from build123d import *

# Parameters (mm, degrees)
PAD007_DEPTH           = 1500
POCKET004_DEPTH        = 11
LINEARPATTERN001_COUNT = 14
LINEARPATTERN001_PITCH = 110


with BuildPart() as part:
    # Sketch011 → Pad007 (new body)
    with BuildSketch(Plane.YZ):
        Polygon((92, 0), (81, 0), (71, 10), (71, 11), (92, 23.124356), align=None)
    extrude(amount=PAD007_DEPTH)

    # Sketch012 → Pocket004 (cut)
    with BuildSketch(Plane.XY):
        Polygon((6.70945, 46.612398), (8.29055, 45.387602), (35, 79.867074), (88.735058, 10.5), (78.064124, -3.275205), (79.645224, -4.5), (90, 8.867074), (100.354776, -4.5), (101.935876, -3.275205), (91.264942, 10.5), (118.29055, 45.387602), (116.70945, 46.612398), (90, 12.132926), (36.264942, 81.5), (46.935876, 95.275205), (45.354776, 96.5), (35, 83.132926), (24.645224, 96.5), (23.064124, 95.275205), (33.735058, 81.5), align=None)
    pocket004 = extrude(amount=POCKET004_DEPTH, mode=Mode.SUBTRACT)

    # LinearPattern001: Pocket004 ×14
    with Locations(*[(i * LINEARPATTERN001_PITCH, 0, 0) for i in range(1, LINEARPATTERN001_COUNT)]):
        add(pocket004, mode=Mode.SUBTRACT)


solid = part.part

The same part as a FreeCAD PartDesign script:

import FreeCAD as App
import Part
import Sketcher

V = App.Vector
Q = App.Units.Quantity


def add_polygon(sketch, points):
    """Adds a closed chain of lines whose ends are joined by coincident constraints."""
    first, n = sketch.GeometryCount, len(points)
    for a, b in zip(points, points[1:] + points[:1]):
        sketch.addGeometry(Part.LineSegment(App.Vector(*a, 0), App.Vector(*b, 0)), False)
    for i in range(n):
        sketch.addConstraint(Sketcher.Constraint("Coincident", first + i, 2, first + (i + 1) % n, 1))

doc = App.newDocument("Part")
body = doc.addObject("PartDesign::Body", "Body")

sketch1 = doc.addObject("Sketcher::SketchObject", "Sketch")
body.addObject(sketch1)
sketch1.AttachmentSupport = (doc.YZ_Plane, [""])
sketch1.MapMode = "FlatFace"
add_polygon(sketch1, [(81, 0), (92, 0), (92, 23.124356), (71, 11), (71, 10)])
sketch1.addConstraint([
    Sketcher.Constraint("Horizontal", 0),
    Sketcher.Constraint("Vertical", 1),
    Sketcher.Constraint("Vertical", 3),
    Sketcher.Constraint("PointOnObject", 0, 2, -1),
    Sketcher.Constraint("DistanceX", 0, 1, 0, 2, Q("11 mm")),
    Sketcher.Constraint("DistanceY", 3, 2, 3, 1, Q("1 mm")),
    Sketcher.Constraint("Angle", 2, Q("-149.999999 deg")),
    Sketcher.Constraint("Angle", 4, Q("-45 deg")),
    Sketcher.Constraint("DistanceX", -1, 1, 0, 2, Q("92 mm")),
    Sketcher.Constraint("DistanceX", -1, 1, 2, 2, Q("71 mm")),
])
pad1 = doc.addObject("PartDesign::Pad", "Pad")
body.addObject(pad1)
pad1.Profile = sketch1
pad1.Length = 1500

sketch2 = doc.addObject("Sketcher::SketchObject", "Sketch001")
body.addObject(sketch2)
sketch2.AttachmentSupport = (doc.XY_Plane, [""])
sketch2.MapMode = "FlatFace"
add_polygon(sketch2, [(6.70945, 46.612398), (8.29055, 45.387602), (35, 79.867074), (88.735058, 10.5), (78.064124, -3.275205), (79.645224, -4.5), (90, 8.867074), (100.354776, -4.5), (101.935876, -3.275205), (91.264942, 10.5), (118.29055, 45.387602), (116.70945, 46.612398), (90, 12.132926), (36.264942, 81.5), (46.935876, 95.275205), (45.354776, 96.5), (35, 83.132926), (24.645224, 96.5), (23.064124, 95.275205), (33.735058, 81.5)])
sketch2.addConstraint([
    Sketcher.Constraint("Distance", 0, Q("2.000001 mm")),
    Sketcher.Constraint("Distance", 4, Q("2 mm")),
    Sketcher.Constraint("Distance", 7, Q("2 mm")),
    Sketcher.Constraint("Distance", 10, Q("2.000001 mm")),
    Sketcher.Constraint("Distance", 14, Q("2 mm")),
    Sketcher.Constraint("Distance", 17, Q("2 mm")),
    Sketcher.Constraint("DistanceX", -1, 1, 1, 2, Q("35 mm")),
    Sketcher.Constraint("DistanceX", -1, 1, 5, 2, Q("90 mm")),
    Sketcher.Constraint("DistanceX", -1, 1, 11, 2, Q("90 mm")),
    Sketcher.Constraint("DistanceX", -1, 1, 15, 2, Q("35 mm")),
    Sketcher.Constraint("DistanceY", 4, 2, 2, 2, Q("15 mm")),
    Sketcher.Constraint("DistanceY", 5, 2, 1, 2, Q("71 mm")),
    Sketcher.Constraint("DistanceY", 6, 2, 2, 2, Q("15 mm")),
    Sketcher.Constraint("DistanceY", 6, 2, 8, 2, Q("15 mm")),
    Sketcher.Constraint("DistanceY", 2, 2, 12, 2, Q("71 mm")),
    Sketcher.Constraint("DistanceY", 12, 2, 14, 2, Q("15 mm")),
    Sketcher.Constraint("DistanceY", 12, 2, 16, 2, Q("15 mm")),
    Sketcher.Constraint("DistanceY", 18, 2, 16, 2, Q("15 mm")),
    Sketcher.Constraint("DistanceY", -1, 1, 2, 2, Q("10.5 mm")),
    Sketcher.Constraint("DistanceX", 3, 2, 4, 2, Q("1.5811 mm")),
    Sketcher.Constraint("DistanceX", 6, 2, 7, 2, Q("1.5811 mm")),
    Sketcher.Constraint("DistanceX", 10, 2, 9, 2, Q("1.5811 mm")),
    Sketcher.Constraint("DistanceX", 14, 2, 13, 2, Q("1.5811 mm")),
    Sketcher.Constraint("DistanceX", 17, 2, 16, 2, Q("1.5811 mm")),
    Sketcher.Constraint("DistanceX", 19, 2, 0, 2, Q("1.5811 mm")),
    Sketcher.Constraint("Distance", 3, Q("17.424842 mm")),
    Sketcher.Constraint("Distance", 5, Q("16.908579 mm")),
    Sketcher.Constraint("Distance", 6, Q("16.908579 mm")),
    Sketcher.Constraint("Distance", 8, Q("17.424842 mm")),
    Sketcher.Constraint("Distance", 9, Q("44.130809 mm")),
    Sketcher.Constraint("Distance", 13, Q("17.424842 mm")),
    Sketcher.Constraint("Distance", 15, Q("16.908579 mm")),
    Sketcher.Constraint("Distance", 16, Q("16.908579 mm")),
    Sketcher.Constraint("Distance", 18, Q("17.424842 mm")),
    Sketcher.Constraint("Distance", 19, Q("44.130809 mm")),
    Sketcher.Constraint("DistanceX", -1, 1, 0, 2, Q("8.29055 mm")),
    Sketcher.Constraint("DistanceX", -1, 1, 9, 2, Q("118.29055 mm")),
    Sketcher.Constraint("DistanceX", -1, 1, 12, 2, Q("36.264942 mm")),
    Sketcher.Constraint("DistanceX", 0, 2, 2, 2, Q("80.444508 mm")),
    Sketcher.Constraint("DistanceY", 5, 2, 11, 2, Q("3.265852 mm")),
])
pocket1 = doc.addObject("PartDesign::Pocket", "Pocket")
body.addObject(pocket1)
pocket1.Profile = sketch2
pocket1.Length = 11
pocket1.Reversed = True
doc.recompute()

linearpattern = doc.addObject("PartDesign::LinearPattern", "LinearPattern")
body.addObject(linearpattern)
linearpattern.Originals = [pocket1]
linearpattern.Direction = (doc.X_Axis, [""])
linearpattern.Mode = "offset"
linearpattern.Offset = 110
linearpattern.Occurrences = 14
body.Tip = linearpattern

doc.recompute()
